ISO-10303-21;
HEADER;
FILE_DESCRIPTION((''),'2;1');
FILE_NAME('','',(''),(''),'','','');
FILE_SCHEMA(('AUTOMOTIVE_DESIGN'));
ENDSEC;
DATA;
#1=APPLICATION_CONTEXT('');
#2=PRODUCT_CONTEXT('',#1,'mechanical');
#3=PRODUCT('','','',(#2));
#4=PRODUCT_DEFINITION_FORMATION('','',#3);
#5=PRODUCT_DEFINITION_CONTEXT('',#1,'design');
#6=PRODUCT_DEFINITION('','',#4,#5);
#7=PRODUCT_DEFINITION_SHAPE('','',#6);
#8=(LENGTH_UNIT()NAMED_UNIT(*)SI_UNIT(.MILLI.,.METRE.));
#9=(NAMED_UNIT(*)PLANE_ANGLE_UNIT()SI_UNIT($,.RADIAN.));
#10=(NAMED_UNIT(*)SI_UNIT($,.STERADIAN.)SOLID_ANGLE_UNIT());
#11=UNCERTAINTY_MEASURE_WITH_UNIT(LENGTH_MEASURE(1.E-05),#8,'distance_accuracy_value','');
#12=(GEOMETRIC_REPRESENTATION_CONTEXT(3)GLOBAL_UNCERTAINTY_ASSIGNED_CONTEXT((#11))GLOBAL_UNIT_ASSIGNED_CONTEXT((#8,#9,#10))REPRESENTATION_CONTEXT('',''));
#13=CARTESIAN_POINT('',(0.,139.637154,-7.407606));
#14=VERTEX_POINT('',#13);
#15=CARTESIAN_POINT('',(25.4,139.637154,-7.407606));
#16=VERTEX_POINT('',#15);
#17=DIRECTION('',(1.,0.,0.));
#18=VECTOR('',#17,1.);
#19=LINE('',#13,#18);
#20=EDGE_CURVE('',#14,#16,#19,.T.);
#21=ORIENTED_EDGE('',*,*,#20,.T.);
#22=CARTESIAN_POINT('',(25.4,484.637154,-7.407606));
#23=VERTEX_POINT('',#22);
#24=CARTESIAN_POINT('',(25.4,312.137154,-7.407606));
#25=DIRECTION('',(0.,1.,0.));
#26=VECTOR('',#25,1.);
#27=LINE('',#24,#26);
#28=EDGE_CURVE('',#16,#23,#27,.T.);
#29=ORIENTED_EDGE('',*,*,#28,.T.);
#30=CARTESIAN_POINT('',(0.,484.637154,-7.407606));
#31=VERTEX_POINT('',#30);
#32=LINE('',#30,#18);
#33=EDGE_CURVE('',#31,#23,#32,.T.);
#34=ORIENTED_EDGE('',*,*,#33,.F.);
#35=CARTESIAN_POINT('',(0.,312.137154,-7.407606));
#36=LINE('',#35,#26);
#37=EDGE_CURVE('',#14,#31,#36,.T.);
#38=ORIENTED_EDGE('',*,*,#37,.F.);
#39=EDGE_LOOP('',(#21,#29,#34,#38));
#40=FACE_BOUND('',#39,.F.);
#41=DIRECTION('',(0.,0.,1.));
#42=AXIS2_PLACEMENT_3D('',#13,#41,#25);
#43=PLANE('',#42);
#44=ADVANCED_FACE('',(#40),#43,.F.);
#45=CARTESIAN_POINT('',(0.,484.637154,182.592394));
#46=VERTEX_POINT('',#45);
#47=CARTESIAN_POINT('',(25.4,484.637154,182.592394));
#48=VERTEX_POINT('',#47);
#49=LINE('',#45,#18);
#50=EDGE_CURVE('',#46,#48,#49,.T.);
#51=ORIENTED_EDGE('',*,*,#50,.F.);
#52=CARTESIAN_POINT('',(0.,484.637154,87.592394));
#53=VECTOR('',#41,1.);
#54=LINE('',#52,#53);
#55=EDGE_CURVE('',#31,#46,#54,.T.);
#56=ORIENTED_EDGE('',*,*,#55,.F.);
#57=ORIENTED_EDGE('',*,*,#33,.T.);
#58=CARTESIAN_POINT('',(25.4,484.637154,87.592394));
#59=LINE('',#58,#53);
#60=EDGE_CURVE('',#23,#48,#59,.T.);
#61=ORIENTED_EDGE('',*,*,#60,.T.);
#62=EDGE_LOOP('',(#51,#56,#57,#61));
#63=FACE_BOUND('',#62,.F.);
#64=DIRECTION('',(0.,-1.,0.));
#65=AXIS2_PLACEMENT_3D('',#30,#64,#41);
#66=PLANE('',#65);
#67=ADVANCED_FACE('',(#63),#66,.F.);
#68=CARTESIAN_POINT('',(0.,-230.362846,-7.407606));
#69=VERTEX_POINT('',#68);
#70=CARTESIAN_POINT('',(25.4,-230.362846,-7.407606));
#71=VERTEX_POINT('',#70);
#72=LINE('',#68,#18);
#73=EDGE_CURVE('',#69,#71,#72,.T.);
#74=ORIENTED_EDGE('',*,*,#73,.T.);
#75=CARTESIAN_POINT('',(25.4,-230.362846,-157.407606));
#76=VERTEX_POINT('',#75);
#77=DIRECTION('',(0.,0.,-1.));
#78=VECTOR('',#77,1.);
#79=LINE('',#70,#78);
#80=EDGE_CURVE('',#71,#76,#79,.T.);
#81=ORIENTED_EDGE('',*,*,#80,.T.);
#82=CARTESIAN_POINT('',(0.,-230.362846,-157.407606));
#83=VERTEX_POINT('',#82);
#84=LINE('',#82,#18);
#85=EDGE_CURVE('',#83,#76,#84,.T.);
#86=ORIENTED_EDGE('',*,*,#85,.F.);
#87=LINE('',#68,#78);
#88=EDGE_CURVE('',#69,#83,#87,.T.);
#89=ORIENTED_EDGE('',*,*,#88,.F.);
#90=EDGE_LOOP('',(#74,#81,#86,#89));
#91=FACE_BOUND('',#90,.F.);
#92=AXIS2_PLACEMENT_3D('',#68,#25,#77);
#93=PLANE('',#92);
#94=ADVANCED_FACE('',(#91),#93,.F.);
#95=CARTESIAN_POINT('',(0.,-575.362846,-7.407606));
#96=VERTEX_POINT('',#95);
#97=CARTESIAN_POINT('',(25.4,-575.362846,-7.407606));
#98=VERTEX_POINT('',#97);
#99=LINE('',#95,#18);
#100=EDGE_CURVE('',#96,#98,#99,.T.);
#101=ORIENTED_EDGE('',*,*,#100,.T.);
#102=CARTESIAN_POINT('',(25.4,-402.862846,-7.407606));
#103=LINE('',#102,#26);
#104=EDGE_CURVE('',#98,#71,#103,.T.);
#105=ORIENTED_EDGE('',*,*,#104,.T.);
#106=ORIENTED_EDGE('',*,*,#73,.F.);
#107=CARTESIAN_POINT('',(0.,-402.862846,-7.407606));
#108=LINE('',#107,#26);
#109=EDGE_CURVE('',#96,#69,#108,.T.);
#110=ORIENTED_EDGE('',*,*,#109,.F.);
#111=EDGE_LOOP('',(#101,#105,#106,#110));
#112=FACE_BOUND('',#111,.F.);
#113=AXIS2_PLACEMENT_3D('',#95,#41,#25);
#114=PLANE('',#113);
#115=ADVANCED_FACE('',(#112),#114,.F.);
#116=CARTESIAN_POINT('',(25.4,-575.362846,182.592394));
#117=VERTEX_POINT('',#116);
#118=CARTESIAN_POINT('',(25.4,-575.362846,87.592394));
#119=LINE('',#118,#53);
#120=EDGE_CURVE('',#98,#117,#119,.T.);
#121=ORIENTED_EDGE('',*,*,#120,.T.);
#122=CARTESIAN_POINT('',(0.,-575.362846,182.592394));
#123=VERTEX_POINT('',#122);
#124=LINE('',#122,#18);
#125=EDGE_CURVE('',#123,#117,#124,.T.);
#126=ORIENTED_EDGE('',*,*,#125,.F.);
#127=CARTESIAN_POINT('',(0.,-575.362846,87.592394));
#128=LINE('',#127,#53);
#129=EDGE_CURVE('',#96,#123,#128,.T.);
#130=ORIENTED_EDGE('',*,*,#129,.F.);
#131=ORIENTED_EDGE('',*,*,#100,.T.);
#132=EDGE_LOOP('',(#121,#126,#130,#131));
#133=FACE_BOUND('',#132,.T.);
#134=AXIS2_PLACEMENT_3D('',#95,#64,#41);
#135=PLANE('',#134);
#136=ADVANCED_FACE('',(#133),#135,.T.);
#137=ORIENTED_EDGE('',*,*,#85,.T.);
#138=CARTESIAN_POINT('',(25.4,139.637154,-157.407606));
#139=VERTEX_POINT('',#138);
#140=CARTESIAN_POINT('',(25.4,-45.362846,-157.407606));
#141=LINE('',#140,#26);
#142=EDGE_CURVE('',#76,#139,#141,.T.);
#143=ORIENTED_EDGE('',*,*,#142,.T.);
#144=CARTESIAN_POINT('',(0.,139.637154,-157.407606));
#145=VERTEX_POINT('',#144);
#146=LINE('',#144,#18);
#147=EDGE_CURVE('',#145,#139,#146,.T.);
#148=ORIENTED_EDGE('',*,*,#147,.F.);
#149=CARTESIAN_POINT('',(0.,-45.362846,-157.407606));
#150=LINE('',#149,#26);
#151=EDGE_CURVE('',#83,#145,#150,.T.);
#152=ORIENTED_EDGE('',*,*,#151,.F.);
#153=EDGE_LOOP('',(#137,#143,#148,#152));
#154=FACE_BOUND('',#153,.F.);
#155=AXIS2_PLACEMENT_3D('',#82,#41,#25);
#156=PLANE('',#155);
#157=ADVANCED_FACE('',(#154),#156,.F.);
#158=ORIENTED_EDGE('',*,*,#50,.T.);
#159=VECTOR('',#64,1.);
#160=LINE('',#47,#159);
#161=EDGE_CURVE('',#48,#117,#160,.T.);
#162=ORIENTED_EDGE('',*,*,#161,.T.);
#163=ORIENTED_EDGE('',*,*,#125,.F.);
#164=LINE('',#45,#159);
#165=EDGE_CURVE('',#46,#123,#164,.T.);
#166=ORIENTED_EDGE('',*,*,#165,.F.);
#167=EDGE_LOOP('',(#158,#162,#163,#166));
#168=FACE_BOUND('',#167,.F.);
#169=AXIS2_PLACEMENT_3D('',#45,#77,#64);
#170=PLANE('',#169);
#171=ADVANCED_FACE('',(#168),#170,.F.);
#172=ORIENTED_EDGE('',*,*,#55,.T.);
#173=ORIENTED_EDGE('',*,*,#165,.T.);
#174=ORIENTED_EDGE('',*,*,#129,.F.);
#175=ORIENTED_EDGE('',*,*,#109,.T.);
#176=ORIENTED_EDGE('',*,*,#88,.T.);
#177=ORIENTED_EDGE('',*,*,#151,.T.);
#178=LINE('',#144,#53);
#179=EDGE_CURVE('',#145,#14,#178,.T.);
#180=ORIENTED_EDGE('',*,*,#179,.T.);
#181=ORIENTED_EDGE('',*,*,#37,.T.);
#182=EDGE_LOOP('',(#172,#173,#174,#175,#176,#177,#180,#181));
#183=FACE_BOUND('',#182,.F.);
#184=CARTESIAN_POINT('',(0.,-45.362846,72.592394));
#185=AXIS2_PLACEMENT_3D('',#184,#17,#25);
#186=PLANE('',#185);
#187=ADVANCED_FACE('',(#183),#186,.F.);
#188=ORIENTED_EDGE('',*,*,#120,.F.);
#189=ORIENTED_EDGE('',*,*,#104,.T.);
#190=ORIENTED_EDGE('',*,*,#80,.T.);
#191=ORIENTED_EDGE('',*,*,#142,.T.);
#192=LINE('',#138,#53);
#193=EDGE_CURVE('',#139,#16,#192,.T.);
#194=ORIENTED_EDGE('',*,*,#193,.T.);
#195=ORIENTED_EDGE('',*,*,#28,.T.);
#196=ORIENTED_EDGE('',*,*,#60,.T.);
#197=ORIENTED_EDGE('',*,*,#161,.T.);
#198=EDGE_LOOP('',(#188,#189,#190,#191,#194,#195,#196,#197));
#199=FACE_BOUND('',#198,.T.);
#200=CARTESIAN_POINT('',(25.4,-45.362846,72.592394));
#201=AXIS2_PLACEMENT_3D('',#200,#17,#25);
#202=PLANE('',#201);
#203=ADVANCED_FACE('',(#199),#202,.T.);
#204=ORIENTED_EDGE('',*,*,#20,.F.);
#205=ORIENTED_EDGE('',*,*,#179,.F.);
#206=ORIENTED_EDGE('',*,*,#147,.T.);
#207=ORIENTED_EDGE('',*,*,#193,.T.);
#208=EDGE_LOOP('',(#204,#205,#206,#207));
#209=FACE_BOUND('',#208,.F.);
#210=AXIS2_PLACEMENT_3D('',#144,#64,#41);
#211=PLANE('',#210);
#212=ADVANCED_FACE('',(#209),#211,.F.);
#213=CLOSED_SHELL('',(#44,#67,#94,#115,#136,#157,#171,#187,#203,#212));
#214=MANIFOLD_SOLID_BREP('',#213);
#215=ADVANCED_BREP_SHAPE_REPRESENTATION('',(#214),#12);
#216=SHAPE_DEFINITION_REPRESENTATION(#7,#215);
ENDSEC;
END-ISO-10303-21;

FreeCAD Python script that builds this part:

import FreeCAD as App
import Part
import Sketcher
Q = App.Units.Quantity


def add_polygon(sketch, points):
    """Adds a closed chain of lines whose ends are joined by coincident constraints."""
    first, n = sketch.GeometryCount, len(points)
    for a, b in zip(points, points[1:] + points[:1]):
        sketch.addGeometry(Part.LineSegment(App.Vector(*a, 0), App.Vector(*b, 0)), False)
    for i in range(n):
        sketch.addConstraint(Sketcher.Constraint("Coincident", first + i, 2, first + (i + 1) % n, 1))

doc = App.newDocument("Part")
body = doc.addObject("PartDesign::Body", "Body")

# Sketch on YZ plane
sketch1 = doc.addObject("Sketcher::SketchObject", "Sketch")
body.addObject(sketch1)
sketch1.AttachmentSupport = (doc.YZ_Plane, [""])
sketch1.MapMode = "FlatFace"
add_polygon(sketch1, [(-575.362846, 182.592394), (-575.362846, -7.407606), (-230.362846, -7.407606), (-230.362846, -157.407606), (139.637154, -157.407606), (139.637154, -7.407606), (484.637154, -7.407606), (484.637154, 182.592394)])  # lines 0-7
sketch1.addConstraint(Sketcher.Constraint("Vertical", 0))
sketch1.addConstraint(Sketcher.Constraint("Horizontal", 1))
sketch1.addConstraint(Sketcher.Constraint("Vertical", 2))
sketch1.addConstraint(Sketcher.Constraint("Horizontal", 3))
sketch1.addConstraint(Sketcher.Constraint("Vertical", 4))
sketch1.addConstraint(Sketcher.Constraint("Horizontal", 5))
sketch1.addConstraint(Sketcher.Constraint("Vertical", 6))
sketch1.addConstraint(Sketcher.Constraint("Horizontal", 7))
sketch1.addConstraint(Sketcher.Constraint("Horizontal", 1, 2, 4, 2))
sketch1.addConstraint(Sketcher.Constraint("Equal", 1, 5))
sketch1.addConstraint(Sketcher.Constraint("DistanceX", 1, 1, 1, 2, Q("345 mm")))
sketch1.addConstraint(Sketcher.Constraint("DistanceX", 3, 1, 3, 2, Q("370 mm")))
sketch1.addConstraint(Sketcher.Constraint("DistanceY", 0, 2, 0, 1, Q("190 mm")))
sketch1.addConstraint(Sketcher.Constraint("DistanceY", 2, 2, 2, 1, Q("150 mm")))
sketch1.addConstraint(Sketcher.Constraint("DistanceX", 0, 2, -1, 1, Q("575.362846 mm")))
sketch1.addConstraint(Sketcher.Constraint("DistanceY", 0, 2, -1, 1, Q("7.407606 mm")))
pad1 = doc.addObject("PartDesign::Pad", "Pad")
body.addObject(pad1)
pad1.Profile = sketch1
pad1.Length = 25.4

doc.recompute()
